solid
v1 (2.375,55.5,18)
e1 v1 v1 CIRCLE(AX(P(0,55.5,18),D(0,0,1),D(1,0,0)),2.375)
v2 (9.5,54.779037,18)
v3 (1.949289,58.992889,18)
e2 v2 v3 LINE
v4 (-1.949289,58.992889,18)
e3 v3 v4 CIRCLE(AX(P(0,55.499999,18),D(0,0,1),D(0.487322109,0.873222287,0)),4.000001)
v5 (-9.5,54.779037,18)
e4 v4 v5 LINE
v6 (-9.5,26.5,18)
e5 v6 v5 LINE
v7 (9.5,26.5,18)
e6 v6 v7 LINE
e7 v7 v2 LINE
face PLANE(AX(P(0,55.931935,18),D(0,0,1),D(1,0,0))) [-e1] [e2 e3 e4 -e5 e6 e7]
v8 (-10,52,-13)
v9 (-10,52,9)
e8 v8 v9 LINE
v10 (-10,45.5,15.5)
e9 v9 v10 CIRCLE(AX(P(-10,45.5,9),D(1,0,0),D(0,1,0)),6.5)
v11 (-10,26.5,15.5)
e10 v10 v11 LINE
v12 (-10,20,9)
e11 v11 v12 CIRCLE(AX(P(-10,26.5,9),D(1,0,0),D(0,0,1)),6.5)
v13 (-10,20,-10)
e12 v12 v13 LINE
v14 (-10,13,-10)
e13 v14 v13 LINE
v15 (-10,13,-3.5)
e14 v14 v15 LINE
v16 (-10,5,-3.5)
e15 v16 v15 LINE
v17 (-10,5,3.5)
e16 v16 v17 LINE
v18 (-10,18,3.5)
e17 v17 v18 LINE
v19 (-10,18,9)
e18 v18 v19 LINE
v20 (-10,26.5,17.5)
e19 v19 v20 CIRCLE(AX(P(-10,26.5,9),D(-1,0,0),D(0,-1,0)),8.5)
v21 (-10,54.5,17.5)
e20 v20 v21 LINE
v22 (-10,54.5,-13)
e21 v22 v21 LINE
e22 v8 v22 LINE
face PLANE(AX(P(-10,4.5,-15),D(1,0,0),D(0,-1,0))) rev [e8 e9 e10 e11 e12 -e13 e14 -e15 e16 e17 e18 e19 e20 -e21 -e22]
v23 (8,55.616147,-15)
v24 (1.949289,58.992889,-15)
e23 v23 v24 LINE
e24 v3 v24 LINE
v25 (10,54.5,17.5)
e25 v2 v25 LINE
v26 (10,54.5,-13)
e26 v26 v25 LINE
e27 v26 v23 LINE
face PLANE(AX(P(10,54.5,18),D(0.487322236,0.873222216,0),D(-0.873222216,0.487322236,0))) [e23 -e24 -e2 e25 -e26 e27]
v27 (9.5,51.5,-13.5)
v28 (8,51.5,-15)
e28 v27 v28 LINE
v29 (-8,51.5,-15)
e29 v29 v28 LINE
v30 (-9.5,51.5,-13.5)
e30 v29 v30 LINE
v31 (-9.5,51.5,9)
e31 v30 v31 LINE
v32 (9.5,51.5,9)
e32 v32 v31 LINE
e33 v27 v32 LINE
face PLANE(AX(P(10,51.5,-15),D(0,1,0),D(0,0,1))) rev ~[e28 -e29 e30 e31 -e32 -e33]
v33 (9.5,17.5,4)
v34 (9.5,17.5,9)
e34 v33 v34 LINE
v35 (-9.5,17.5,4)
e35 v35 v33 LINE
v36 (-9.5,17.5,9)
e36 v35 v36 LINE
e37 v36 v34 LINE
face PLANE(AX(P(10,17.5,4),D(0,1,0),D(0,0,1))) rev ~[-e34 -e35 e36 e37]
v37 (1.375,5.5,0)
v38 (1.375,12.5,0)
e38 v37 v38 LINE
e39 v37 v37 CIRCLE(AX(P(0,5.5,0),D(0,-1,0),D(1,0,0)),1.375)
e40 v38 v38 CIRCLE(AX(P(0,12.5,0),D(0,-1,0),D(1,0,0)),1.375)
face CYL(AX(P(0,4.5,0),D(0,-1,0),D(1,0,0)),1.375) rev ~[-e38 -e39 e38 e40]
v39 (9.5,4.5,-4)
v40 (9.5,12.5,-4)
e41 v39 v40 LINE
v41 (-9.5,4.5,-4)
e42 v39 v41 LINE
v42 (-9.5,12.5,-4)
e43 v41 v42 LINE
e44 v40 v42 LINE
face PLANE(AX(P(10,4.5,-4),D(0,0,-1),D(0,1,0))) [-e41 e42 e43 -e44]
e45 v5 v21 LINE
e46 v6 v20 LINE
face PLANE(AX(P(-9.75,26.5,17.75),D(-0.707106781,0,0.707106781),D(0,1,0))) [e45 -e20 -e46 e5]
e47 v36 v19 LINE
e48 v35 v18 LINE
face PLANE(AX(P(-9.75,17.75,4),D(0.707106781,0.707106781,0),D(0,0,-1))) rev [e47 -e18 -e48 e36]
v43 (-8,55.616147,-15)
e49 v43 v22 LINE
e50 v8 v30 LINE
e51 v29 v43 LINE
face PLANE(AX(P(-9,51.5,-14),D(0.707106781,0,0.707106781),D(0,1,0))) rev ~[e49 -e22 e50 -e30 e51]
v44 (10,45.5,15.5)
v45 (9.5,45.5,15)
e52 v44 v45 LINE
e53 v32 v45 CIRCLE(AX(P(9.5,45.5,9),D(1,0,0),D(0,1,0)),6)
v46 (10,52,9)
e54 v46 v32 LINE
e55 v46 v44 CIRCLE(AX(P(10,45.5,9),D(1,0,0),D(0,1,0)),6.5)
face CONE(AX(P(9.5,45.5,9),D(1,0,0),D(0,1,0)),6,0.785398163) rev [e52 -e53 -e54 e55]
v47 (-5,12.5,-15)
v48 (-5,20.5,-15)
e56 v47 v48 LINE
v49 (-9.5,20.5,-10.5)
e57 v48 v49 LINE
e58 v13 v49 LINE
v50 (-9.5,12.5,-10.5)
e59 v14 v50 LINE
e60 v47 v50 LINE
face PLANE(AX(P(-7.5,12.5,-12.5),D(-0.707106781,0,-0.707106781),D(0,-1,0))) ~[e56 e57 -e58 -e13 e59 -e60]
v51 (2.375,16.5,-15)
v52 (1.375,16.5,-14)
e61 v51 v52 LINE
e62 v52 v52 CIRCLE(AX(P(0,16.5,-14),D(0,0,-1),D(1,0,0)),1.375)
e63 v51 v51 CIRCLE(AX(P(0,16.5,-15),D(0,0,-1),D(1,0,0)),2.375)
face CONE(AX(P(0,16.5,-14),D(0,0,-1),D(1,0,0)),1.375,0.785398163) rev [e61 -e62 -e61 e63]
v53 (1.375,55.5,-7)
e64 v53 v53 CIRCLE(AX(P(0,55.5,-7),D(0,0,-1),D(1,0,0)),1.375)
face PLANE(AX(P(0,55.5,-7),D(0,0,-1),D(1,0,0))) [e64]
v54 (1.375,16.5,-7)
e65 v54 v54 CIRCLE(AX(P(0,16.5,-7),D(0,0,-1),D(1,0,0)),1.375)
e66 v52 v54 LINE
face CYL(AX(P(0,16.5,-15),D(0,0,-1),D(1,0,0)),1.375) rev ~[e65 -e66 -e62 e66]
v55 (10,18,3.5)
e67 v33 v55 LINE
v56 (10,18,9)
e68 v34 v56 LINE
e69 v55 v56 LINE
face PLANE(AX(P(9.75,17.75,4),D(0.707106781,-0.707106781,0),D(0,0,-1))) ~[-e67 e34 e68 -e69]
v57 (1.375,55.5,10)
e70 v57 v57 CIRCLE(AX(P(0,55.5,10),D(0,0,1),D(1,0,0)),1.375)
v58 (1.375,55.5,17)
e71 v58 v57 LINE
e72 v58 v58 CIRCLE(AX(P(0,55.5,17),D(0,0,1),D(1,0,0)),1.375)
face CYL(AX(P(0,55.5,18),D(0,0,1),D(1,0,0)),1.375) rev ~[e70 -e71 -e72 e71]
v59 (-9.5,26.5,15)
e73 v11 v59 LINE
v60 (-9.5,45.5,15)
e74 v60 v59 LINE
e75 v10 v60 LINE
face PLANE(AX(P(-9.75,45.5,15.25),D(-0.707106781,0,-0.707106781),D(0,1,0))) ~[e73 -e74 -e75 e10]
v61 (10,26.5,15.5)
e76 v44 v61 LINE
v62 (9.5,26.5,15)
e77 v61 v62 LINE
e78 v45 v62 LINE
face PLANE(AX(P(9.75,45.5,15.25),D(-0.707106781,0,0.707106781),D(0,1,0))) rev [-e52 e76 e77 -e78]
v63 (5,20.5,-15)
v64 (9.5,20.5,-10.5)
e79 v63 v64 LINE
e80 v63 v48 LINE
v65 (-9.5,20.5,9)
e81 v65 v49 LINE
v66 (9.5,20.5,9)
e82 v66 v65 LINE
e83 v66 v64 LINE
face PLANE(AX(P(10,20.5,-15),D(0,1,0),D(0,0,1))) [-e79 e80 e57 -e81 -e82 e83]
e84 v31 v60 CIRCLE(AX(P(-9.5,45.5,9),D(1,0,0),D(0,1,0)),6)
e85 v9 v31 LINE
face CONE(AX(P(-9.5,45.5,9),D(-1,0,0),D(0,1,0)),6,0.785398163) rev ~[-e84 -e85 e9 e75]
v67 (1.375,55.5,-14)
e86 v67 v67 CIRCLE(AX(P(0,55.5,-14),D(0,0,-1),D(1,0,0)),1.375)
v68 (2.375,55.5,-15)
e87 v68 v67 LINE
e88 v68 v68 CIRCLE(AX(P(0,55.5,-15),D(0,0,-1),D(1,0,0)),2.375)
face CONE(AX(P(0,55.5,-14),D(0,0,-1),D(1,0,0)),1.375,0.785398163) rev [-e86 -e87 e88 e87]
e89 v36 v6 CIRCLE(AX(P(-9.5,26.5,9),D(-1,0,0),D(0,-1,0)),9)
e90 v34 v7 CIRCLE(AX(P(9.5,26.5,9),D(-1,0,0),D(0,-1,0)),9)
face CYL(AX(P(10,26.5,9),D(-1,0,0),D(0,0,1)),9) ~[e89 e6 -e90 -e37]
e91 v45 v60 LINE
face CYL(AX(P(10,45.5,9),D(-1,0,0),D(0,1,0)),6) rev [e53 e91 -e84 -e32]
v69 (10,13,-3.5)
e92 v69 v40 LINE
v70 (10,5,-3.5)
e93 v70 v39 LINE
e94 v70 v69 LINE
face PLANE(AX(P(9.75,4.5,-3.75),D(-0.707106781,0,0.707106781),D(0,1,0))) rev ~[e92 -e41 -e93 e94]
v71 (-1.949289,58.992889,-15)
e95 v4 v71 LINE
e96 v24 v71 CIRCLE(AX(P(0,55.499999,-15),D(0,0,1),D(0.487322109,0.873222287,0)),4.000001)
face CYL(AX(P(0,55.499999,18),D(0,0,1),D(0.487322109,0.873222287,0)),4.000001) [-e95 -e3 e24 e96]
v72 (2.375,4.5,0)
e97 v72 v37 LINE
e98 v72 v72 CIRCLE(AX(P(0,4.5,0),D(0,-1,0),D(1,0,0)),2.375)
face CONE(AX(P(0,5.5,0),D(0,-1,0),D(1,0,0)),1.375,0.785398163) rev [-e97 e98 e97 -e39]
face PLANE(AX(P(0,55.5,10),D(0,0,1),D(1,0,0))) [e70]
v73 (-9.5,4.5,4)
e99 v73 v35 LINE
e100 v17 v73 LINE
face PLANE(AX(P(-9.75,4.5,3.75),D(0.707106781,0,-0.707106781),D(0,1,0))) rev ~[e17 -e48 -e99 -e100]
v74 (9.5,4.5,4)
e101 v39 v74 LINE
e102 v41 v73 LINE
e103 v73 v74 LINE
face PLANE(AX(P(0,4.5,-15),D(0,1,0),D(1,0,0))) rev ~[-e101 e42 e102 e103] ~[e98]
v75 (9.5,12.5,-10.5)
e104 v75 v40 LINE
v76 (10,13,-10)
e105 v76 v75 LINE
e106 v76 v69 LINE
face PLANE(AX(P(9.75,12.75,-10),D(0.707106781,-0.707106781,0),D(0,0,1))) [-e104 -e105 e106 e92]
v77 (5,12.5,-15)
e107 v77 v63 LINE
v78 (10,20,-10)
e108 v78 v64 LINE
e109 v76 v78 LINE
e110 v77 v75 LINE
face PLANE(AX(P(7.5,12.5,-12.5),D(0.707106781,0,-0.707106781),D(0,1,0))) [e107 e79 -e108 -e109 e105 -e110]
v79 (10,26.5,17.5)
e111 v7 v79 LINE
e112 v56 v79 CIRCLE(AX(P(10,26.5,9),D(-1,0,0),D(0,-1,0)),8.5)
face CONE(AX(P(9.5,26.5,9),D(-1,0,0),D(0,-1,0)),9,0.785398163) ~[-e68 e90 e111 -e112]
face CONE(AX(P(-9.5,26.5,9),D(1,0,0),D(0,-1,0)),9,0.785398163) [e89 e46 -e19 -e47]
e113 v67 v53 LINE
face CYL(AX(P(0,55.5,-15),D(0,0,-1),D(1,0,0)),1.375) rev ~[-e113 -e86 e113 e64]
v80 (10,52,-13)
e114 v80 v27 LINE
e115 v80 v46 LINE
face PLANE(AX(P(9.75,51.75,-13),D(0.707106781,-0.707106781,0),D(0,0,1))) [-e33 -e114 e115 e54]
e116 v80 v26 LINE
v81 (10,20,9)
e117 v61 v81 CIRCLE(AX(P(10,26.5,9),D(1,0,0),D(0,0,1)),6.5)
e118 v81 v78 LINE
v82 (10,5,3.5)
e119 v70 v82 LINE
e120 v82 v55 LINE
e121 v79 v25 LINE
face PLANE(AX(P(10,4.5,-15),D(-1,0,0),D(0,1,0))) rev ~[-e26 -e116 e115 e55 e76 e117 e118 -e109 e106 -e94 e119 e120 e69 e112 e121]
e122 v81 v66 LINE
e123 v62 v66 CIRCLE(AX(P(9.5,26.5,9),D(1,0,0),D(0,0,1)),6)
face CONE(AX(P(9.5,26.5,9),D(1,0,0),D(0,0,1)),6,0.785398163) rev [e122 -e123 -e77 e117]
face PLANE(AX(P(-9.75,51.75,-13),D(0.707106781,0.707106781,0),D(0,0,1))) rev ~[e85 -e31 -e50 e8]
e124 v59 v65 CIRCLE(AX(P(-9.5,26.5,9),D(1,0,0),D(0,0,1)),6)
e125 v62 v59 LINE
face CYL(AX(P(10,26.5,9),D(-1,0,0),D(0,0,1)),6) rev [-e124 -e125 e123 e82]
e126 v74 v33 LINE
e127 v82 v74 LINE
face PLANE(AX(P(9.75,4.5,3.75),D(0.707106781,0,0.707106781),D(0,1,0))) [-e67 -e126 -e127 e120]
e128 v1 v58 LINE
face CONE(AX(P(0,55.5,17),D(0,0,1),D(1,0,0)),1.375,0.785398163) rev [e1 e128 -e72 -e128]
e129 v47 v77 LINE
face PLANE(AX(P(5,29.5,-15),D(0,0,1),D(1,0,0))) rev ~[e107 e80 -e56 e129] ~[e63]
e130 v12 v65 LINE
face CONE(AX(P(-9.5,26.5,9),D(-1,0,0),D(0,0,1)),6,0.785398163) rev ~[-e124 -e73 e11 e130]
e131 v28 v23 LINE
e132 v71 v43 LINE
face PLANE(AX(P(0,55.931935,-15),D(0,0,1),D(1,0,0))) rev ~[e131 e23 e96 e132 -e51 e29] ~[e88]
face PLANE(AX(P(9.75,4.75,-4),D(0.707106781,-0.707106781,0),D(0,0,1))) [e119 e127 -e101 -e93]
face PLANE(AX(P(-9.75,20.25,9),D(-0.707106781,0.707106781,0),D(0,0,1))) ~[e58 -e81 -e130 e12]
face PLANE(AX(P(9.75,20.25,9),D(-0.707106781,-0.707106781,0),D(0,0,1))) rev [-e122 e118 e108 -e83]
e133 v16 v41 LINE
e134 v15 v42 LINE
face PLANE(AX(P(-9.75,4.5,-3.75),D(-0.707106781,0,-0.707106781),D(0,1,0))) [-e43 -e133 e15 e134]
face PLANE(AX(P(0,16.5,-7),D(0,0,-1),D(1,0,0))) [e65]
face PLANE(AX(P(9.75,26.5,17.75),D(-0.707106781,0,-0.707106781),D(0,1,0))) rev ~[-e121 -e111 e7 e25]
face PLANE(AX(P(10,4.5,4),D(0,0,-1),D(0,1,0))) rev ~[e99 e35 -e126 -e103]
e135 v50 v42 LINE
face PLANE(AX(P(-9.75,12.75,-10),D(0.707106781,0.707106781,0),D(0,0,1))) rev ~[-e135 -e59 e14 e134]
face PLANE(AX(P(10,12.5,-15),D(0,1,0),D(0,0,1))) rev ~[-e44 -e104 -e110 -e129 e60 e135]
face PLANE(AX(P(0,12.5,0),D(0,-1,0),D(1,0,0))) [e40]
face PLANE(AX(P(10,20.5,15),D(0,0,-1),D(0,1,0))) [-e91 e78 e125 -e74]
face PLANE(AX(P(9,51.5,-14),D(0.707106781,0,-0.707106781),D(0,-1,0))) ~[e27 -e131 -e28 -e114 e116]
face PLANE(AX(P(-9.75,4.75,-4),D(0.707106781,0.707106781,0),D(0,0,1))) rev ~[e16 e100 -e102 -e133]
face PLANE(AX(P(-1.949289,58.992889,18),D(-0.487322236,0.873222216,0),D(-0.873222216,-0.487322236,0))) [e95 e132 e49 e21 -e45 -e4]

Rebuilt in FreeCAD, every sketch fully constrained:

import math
import FreeCAD as App
import Part
import Sketcher
Q = App.Units.Quantity


def edges_at(feature, points):
    """Names of the edges that pass closest to the given points."""
    edges = feature.Shape.Edges
    near = lambda p: min(range(len(edges)), key=lambda i: edges[i].distToShape(Part.Vertex(*p))[0])
    return sorted({f"Edge{near(p) + 1}" for p in points})

doc = App.newDocument("Part")
body = doc.addObject("PartDesign::Body", "Body")

sketch1 = body.newObject("Sketcher::SketchObject", "Sketch")
sketch1.AttachmentSupport = (doc.getObject("XY_Plane"), [""])
sketch1.MapMode = "FlatFace"
sketch1.AttachmentOffset = App.Placement(App.Vector(0, 0, -15), App.Rotation())
sketch1.addGeometry([
    Part.LineSegment(App.Vector(0, 54, 0), App.Vector(0, 4, 0)),
    Part.LineSegment(App.Vector(0, 4, 0), App.Vector(10, 4, 0)),
    Part.LineSegment(App.Vector(10, 4, 0), App.Vector(10, 54, 0)),
    Part.LineSegment(App.Vector(10, 54, 0), App.Vector(0, 54, 0)),
], False)
sketch1.addConstraint([
    Sketcher.Constraint("Coincident", 0, 2, 1, 1),
    Sketcher.Constraint("Coincident", 1, 2, 2, 1),
    Sketcher.Constraint("Coincident", 2, 2, 3, 1),
    Sketcher.Constraint("Coincident", 3, 2, 0, 1),
    Sketcher.Constraint("Vertical", 0),
    Sketcher.Constraint("Horizontal", 1),
    Sketcher.Constraint("Vertical", 2),
    Sketcher.Constraint("Horizontal", 3),
    Sketcher.Constraint("PointOnObject", 0, 2, -2),
    Sketcher.Constraint("DistanceX", 1, 1, 1, 2, Q("10 mm")),
    Sketcher.Constraint("DistanceY", 0, 2, 0, 1, Q("50 mm")),
    Sketcher.Constraint("DistanceY", -1, 1, 0, 2, Q("4.5 mm")),
])
pad1 = body.newObject("PartDesign::Pad", "Pad")
pad1.Profile = sketch1
pad1.Length = 33

sketch2 = body.newObject("Sketcher::SketchObject", "Sketch001")
sketch2.AttachmentSupport = (doc.getObject("YZ_Plane"), [""])
sketch2.MapMode = "FlatFace"
sketch2.AttachmentOffset = App.Placement(App.Vector(0, 0, 10), App.Rotation())
sketch2.addGeometry([
    Part.LineSegment(App.Vector(20, 15, 0), App.Vector(20, -15, 0)),
    Part.LineSegment(App.Vector(20, -15, 0), App.Vector(52, -15, 0)),
    Part.LineSegment(App.Vector(52, -15, 0), App.Vector(52, 15, 0)),
    Part.LineSegment(App.Vector(52, 15, 0), App.Vector(20, 15, 0)),
    Part.LineSegment(App.Vector(4, 18, 0), App.Vector(4, 4, 0)),
    Part.LineSegment(App.Vector(4, 4, 0), App.Vector(18, 4, 0)),
    Part.LineSegment(App.Vector(18, 4, 0), App.Vector(18, 18, 0)),
    Part.LineSegment(App.Vector(18, 18, 0), App.Vector(4, 18, 0)),
    Part.LineSegment(App.Vector(4, -4, 0), App.Vector(4, -15, 0)),
    Part.LineSegment(App.Vector(4, -15, 0), App.Vector(12, -15, 0)),
    Part.LineSegment(App.Vector(12, -15, 0), App.Vector(12, -4, 0)),
    Part.LineSegment(App.Vector(12, -4, 0), App.Vector(4, -4, 0)),
], False)
sketch2.addConstraint([
    Sketcher.Constraint("Coincident", 0, 2, 1, 1),
    Sketcher.Constraint("Coincident", 1, 2, 2, 1),
    Sketcher.Constraint("Coincident", 2, 2, 3, 1),
    Sketcher.Constraint("Coincident", 3, 2, 0, 1),
    Sketcher.Constraint("Coincident", 4, 2, 5, 1),
    Sketcher.Constraint("Coincident", 5, 2, 6, 1),
    Sketcher.Constraint("Coincident", 6, 2, 7, 1),
    Sketcher.Constraint("Coincident", 7, 2, 4, 1),
    Sketcher.Constraint("Coincident", 8, 2, 9, 1),
    Sketcher.Constraint("Coincident", 9, 2, 10, 1),
    Sketcher.Constraint("Coincident", 10, 2, 11, 1),
    Sketcher.Constraint("Coincident", 11, 2, 8, 1),
    Sketcher.Constraint("Vertical", 0),
    Sketcher.Constraint("Horizontal", 1),
    Sketcher.Constraint("Vertical", 2),
    Sketcher.Constraint("Horizontal", 3),
    Sketcher.Constraint("Vertical", 4),
    Sketcher.Constraint("Horizontal", 5),
    Sketcher.Constraint("Vertical", 6),
    Sketcher.Constraint("Horizontal", 7),
    Sketcher.Constraint("Vertical", 8),
    Sketcher.Constraint("Horizontal", 9),
    Sketcher.Constraint("Vertical", 10),
    Sketcher.Constraint("Horizontal", 11),
    Sketcher.Constraint("Symmetric", 4, 2, 11, 2, -1),
    Sketcher.Constraint("Horizontal", 1, 2, 8, 2),
    Sketcher.Constraint("DistanceX", 1, 1, 1, 2, Q("31 mm")),
    Sketcher.Constraint("DistanceX", 5, 1, 5, 2, Q("13 mm")),
    Sketcher.Constraint("DistanceX", 9, 1, 9, 2, Q("8 mm")),
    Sketcher.Constraint("DistanceY", 0, 2, 0, 1, Q("30 mm")),
    Sketcher.Constraint("DistanceY", 4, 2, 4, 1, Q("14 mm")),
    Sketcher.Constraint("DistanceY", 8, 2, 8, 1, Q("11 mm")),
    Sketcher.Constraint("DistanceY", 0, 2, -1, 1, Q("15 mm")),
    Sketcher.Constraint("DistanceX", 4, 2, 3, 2, Q("16 mm")),
    Sketcher.Constraint("DistanceX", -1, 1, 0, 2, Q("20.5 mm")),
])
pocket1 = body.newObject("PartDesign::Pocket", "Pocket")
pocket1.Profile = sketch2
pocket1.Length = 10
doc.recompute()

chamfer = body.newObject("PartDesign::Chamfer", "Chamfer")
chamfer.Base = (pocket1, edges_at(pocket1, [(10, 16.5, -15)]))
chamfer.Size = 5
doc.recompute()

fillet = body.newObject("PartDesign::Fillet", "Fillet")
fillet.Base = (chamfer, edges_at(chamfer, [(5, 17.5, 18)]))
fillet.Radius = 9
doc.recompute()

fillet2 = body.newObject("PartDesign::Fillet", "Fillet001")
fillet2.Base = (fillet, edges_at(fillet, [(5, 20.5, 15), (5, 51.5, 15)]))
fillet2.Radius = 6
body2 = doc.addObject("PartDesign::Body", "Body001")
doc.recompute()

mirroring = doc.addObject("Part::Mirroring", "Mirroring")
mirroring.Source = body
mirroring.Base = App.Vector(0, 0, 0)
mirroring.Normal = App.Vector(1, 0, 0)
body2.BaseFeature = mirroring
doc.recompute()

boolean = body2.newObject("PartDesign::Boolean", "Boolean")
boolean.Type = "Fuse"
boolean.addObjects([body])

sketch3 = body2.newObject("Sketcher::SketchObject", "Sketch002")
sketch3.AttachmentSupport = (doc.getObject("XZ_Plane001"), [""])
sketch3.MapMode = "FlatFace"
sketch3.AttachmentOffset = App.Placement(App.Vector(0, 0, -4.5), App.Rotation())
sketch3.addGeometry(Part.Circle(App.Vector(0, 0, 0), App.Vector(0, 0, 1), 1.4), False)
sketch3.addConstraint([
    Sketcher.Constraint("Coincident", 0, 3, -1, 1),
    Sketcher.Constraint("Diameter", 0, Q("2.75 mm")),
])
pocket2 = body2.newObject("PartDesign::Pocket", "Pocket001")
pocket2.Profile = sketch3
pocket2.Length = 8

sketch4 = body2.newObject("Sketcher::SketchObject", "Sketch003")
sketch4.AttachmentSupport = (doc.getObject("XY_Plane001"), [""])
sketch4.MapMode = "FlatFace"
sketch4.AttachmentOffset = App.Placement(App.Vector(0, 0, -15), App.Rotation())
sketch4.addGeometry(Part.Circle(App.Vector(0, 16.5, 0), App.Vector(0, 0, 1), 1.4), False)
sketch4.addConstraint([
    Sketcher.Constraint("PointOnObject", 0, 3, -2),
    Sketcher.Constraint("Diameter", 0, Q("2.75 mm")),
    Sketcher.Constraint("DistanceY", -1, 1, 0, 3, Q("16.5 mm")),
])
pocket3 = body2.newObject("PartDesign::Pocket", "Pocket002")
pocket3.Profile = sketch4
pocket3.Length = 8
pocket3.Reversed = True
doc.recompute()

chamfer2 = body2.newObject("PartDesign::Chamfer", "Chamfer001")
chamfer2.Base = (pocket3, edges_at(pocket3, [(-1.375, 4.5, 0), (-1.375, 16.5, -15)]))
chamfer2.Size = 1

sketch5 = body2.newObject("Sketcher::SketchObject", "Sketch004")
sketch5.AttachmentSupport = (doc.getObject("XY_Plane001"), [""])
sketch5.MapMode = "FlatFace"
sketch5.AttachmentOffset = App.Placement(App.Vector(0, 0, 18), App.Rotation())
sketch5.addGeometry([
    Part.LineSegment(App.Vector(10, 54.5, 0), App.Vector(1.9, 59, 0)),
    Part.ArcOfCircle(Part.Circle(App.Vector(0, 55.5, 0), App.Vector(0, 0, 1), 4), math.radians(61), math.radians(119)),
    Part.LineSegment(App.Vector(-1.9, 59, 0), App.Vector(-10, 54.5, 0)),
    Part.LineSegment(App.Vector(-10, 54.5, 0), App.Vector(10, 54.5, 0)),
], False)
sketch5.addConstraint([
    Sketcher.Constraint("Tangent", 0, 2, 1, 1),
    Sketcher.Constraint("Tangent", 1, 2, 2, 1),
    Sketcher.Constraint("Coincident", 2, 2, 3, 1),
    Sketcher.Constraint("Coincident", 3, 2, 0, 1),
    Sketcher.Constraint("Horizontal", 3),
    Sketcher.Constraint("Symmetric", 0, 2, 1, 2, -2),
    Sketcher.Constraint("Radius", 1, Q("4.000001 mm")),
    Sketcher.Constraint("DistanceX", 3, 1, 3, 2, Q("20 mm")),
    Sketcher.Constraint("DistanceY", 2, 2, 1, 3, Q("0.999999 mm")),
    Sketcher.Constraint("DistanceY", -1, 1, 1, 3, Q("55.499999 mm")),
])
pad2 = body2.newObject("PartDesign::Pad", "Pad001")
pad2.Profile = sketch5
pad2.Length = 33
pad2.Reversed = True

sketch6 = body2.newObject("Sketcher::SketchObject", "Sketch005")
sketch6.AttachmentSupport = (doc.getObject("XY_Plane001"), [""])
sketch6.MapMode = "FlatFace"
sketch6.AttachmentOffset = App.Placement(App.Vector(0, 0, 18), App.Rotation())
sketch6.addGeometry(Part.Circle(App.Vector(0, 55.5, 0), App.Vector(0, 0, 1), 1.4), False)
sketch6.addConstraint([
    Sketcher.Constraint("PointOnObject", 0, 3, -2),
    Sketcher.Constraint("Diameter", 0, Q("2.75 mm")),
    Sketcher.Constraint("DistanceY", -1, 1, 0, 3, Q("55.5 mm")),
])
pocket4 = body2.newObject("PartDesign::Pocket", "Pocket003")
pocket4.Profile = sketch6
pocket4.Length = 8

sketch7 = body2.newObject("Sketcher::SketchObject", "Sketch006")
sketch7.AttachmentSupport = (doc.getObject("XY_Plane001"), [""])
sketch7.MapMode = "FlatFace"
sketch7.AttachmentOffset = App.Placement(App.Vector(0, 0, -15), App.Rotation())
sketch7.addGeometry(Part.Circle(App.Vector(0, 55.5, 0), App.Vector(0, 0, 1), 1.4), False)
sketch7.addConstraint([
    Sketcher.Constraint("PointOnObject", 0, 3, -2),
    Sketcher.Constraint("Diameter", 0, Q("2.75 mm")),
    Sketcher.Constraint("DistanceY", -1, 1, 0, 3, Q("55.5 mm")),
])
pocket5 = body2.newObject("PartDesign::Pocket", "Pocket004")
pocket5.Profile = sketch7
pocket5.Length = 8
pocket5.Reversed = True
doc.recompute()

chamfer3 = body2.newObject("PartDesign::Chamfer", "Chamfer002")
chamfer3.Base = (pocket5, edges_at(pocket5, [(-10, 53, -15), (10, 53, -15)]))
chamfer3.Size = 2
doc.recompute()

chamfer4 = body2.newObject("PartDesign::Chamfer", "Chamfer003")
chamfer4.Base = (chamfer3, edges_at(chamfer3, [(-1.375, 55.5, -15), (-1.375, 55.5, 18)]))
chamfer4.Size = 1
doc.recompute()

chamfer5 = body2.newObject("PartDesign::Chamfer", "Chamfer004")
chamfer5.Base = (chamfer4, edges_at(chamfer4, [
    (-10, 51.5, -2),
    (-10, 49.743, 13.243),
    (-10, 36, 15),
    (-10, 40.5, 18),
    (-10, 22.257, 13.243),
    (-10, 20.136, 15.364),
    (-10, 20.5, -0.5),
    (-10, 17.5, 6.5),
    (-10, 11, 4),
    (-10, 12.5, -7),
    (-10, 4.5, 0),
    (-10, 8.5, -4),
    (10, 51.5, -2),
    (10, 36, 15),
    (10, 40.5, 18),
    (10, 20.5, -0.5),
    (10, 17.5, 6.5),
    (10, 11, 4),
    (10, 12.5, -7),
    (10, 4.5, 0),
    (10, 8.5, -4),
    (10, 49.743, 13.243),
    (10, 22.257, 13.243),
    (10, 20.136, 15.364),
]))
chamfer5.Size = 0.5
mirroring.Visibility = False

doc.recompute()
